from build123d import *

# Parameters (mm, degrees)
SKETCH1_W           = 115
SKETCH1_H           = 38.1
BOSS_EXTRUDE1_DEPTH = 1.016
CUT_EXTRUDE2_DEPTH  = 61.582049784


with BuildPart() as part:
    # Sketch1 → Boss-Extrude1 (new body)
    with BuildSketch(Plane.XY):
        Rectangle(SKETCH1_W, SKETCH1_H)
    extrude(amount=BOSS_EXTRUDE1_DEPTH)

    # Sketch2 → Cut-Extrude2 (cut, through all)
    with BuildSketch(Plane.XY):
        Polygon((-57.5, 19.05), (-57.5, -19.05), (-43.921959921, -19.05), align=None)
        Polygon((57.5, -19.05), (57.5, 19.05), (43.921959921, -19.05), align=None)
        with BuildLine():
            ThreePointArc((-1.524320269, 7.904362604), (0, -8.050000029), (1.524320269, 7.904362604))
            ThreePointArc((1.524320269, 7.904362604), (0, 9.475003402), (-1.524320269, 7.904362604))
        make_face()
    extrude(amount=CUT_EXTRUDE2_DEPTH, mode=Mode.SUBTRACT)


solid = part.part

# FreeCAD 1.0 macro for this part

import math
import FreeCAD as App
import Part
import Sketcher

V = App.Vector
Q = App.Units.Quantity


def add_polygon(sketch, points):
    """Adds a closed chain of lines whose ends are joined by coincident constraints."""
    first, n = sketch.GeometryCount, len(points)
    for a, b in zip(points, points[1:] + points[:1]):
        sketch.addGeometry(Part.LineSegment(App.Vector(*a, 0), App.Vector(*b, 0)), False)
    for i in range(n):
        sketch.addConstraint(Sketcher.Constraint("Coincident", first + i, 2, first + (i + 1) % n, 1))

doc = App.newDocument("Part")
body = doc.addObject("PartDesign::Body", "Body")

sketch1 = doc.addObject("Sketcher::SketchObject", "Sketch")
body.addObject(sketch1)
sketch1.AttachmentSupport = (doc.XY_Plane, [""])
sketch1.MapMode = "FlatFace"
add_polygon(sketch1, [(-58, 19), (-58, -19), (58, -19), (58, 19)])
sketch1.addConstraint([
    Sketcher.Constraint("Vertical", 0),
    Sketcher.Constraint("Horizontal", 1),
    Sketcher.Constraint("Vertical", 2),
    Sketcher.Constraint("Horizontal", 3),
    Sketcher.Constraint("Symmetric", 0, 2, 2, 2, -1, 1),
    Sketcher.Constraint("DistanceX", 1, 1, 1, 2, Q("115 mm")),
    Sketcher.Constraint("DistanceY", 0, 2, 0, 1, Q("38.1 mm")),
])
pad1 = doc.addObject("PartDesign::Pad", "Pad")
body.addObject(pad1)
pad1.Profile = sketch1
pad1.Length = 1.016

sketch2 = doc.addObject("Sketcher::SketchObject", "Sketch001")
body.addObject(sketch2)
sketch2.AttachmentSupport = (doc.XY_Plane, [""])
sketch2.MapMode = "FlatFace"
add_polygon(sketch2, [(-57.5, 19.1), (-57.5, -19.1), (-43.9, -19.1)])
add_polygon(sketch2, [(57.5, -19.1), (57.5, 19.1), (43.9, -19.1)])
sketch2.addGeometry(Part.ArcOfCircle(Part.Circle(V(0, 0, 0), V(0, 0, 1), 8.1), math.radians(101), math.radians(439)), False)
sketch2.addGeometry(Part.ArcOfCircle(Part.Circle(V(0, 8, 0), V(0, 0, 1), 1.5), math.radians(-2), math.radians(182)), False)
sketch2.addConstraint([
    Sketcher.Constraint("Coincident", 6, 1, 7, 2),
    Sketcher.Constraint("Coincident", 7, 1, 6, 2),
    Sketcher.Constraint("Vertical", 0),
    Sketcher.Constraint("Horizontal", 1),
    Sketcher.Constraint("Vertical", 3),
    Sketcher.Constraint("Horizontal", 5),
    Sketcher.Constraint("Coincident", 6, 3, -1, 1),
    Sketcher.Constraint("Symmetric", 0, 2, 3, 2, -1, 1),
    Sketcher.Constraint("Symmetric", 1, 2, 4, 2, -2),
    Sketcher.Constraint("PointOnObject", 7, 3, -2),
    Sketcher.Constraint("Horizontal", 2, 2, 3, 2),
    Sketcher.Constraint("Radius", 6, Q("8.05 mm")),
    Sketcher.Constraint("DistanceY", 0, 2, 0, 1, Q("38.1 mm")),
    Sketcher.Constraint("DistanceY", 0, 2, 7, 3, Q("27 mm")),
    Sketcher.Constraint("DistanceX", 2, 2, 3, 2, Q("115 mm")),
    Sketcher.Constraint("Radius", 7, Q("1.525003 mm")),
    Sketcher.Constraint("DistanceX", 1, 1, 1, 2, Q("13.57804 mm")),
])
pocket1 = doc.addObject("PartDesign::Pocket", "Pocket")
body.addObject(pocket1)
pocket1.Profile = sketch2
pocket1.Type = "ThroughAll"
pocket1.Reversed = True

doc.recompute()
